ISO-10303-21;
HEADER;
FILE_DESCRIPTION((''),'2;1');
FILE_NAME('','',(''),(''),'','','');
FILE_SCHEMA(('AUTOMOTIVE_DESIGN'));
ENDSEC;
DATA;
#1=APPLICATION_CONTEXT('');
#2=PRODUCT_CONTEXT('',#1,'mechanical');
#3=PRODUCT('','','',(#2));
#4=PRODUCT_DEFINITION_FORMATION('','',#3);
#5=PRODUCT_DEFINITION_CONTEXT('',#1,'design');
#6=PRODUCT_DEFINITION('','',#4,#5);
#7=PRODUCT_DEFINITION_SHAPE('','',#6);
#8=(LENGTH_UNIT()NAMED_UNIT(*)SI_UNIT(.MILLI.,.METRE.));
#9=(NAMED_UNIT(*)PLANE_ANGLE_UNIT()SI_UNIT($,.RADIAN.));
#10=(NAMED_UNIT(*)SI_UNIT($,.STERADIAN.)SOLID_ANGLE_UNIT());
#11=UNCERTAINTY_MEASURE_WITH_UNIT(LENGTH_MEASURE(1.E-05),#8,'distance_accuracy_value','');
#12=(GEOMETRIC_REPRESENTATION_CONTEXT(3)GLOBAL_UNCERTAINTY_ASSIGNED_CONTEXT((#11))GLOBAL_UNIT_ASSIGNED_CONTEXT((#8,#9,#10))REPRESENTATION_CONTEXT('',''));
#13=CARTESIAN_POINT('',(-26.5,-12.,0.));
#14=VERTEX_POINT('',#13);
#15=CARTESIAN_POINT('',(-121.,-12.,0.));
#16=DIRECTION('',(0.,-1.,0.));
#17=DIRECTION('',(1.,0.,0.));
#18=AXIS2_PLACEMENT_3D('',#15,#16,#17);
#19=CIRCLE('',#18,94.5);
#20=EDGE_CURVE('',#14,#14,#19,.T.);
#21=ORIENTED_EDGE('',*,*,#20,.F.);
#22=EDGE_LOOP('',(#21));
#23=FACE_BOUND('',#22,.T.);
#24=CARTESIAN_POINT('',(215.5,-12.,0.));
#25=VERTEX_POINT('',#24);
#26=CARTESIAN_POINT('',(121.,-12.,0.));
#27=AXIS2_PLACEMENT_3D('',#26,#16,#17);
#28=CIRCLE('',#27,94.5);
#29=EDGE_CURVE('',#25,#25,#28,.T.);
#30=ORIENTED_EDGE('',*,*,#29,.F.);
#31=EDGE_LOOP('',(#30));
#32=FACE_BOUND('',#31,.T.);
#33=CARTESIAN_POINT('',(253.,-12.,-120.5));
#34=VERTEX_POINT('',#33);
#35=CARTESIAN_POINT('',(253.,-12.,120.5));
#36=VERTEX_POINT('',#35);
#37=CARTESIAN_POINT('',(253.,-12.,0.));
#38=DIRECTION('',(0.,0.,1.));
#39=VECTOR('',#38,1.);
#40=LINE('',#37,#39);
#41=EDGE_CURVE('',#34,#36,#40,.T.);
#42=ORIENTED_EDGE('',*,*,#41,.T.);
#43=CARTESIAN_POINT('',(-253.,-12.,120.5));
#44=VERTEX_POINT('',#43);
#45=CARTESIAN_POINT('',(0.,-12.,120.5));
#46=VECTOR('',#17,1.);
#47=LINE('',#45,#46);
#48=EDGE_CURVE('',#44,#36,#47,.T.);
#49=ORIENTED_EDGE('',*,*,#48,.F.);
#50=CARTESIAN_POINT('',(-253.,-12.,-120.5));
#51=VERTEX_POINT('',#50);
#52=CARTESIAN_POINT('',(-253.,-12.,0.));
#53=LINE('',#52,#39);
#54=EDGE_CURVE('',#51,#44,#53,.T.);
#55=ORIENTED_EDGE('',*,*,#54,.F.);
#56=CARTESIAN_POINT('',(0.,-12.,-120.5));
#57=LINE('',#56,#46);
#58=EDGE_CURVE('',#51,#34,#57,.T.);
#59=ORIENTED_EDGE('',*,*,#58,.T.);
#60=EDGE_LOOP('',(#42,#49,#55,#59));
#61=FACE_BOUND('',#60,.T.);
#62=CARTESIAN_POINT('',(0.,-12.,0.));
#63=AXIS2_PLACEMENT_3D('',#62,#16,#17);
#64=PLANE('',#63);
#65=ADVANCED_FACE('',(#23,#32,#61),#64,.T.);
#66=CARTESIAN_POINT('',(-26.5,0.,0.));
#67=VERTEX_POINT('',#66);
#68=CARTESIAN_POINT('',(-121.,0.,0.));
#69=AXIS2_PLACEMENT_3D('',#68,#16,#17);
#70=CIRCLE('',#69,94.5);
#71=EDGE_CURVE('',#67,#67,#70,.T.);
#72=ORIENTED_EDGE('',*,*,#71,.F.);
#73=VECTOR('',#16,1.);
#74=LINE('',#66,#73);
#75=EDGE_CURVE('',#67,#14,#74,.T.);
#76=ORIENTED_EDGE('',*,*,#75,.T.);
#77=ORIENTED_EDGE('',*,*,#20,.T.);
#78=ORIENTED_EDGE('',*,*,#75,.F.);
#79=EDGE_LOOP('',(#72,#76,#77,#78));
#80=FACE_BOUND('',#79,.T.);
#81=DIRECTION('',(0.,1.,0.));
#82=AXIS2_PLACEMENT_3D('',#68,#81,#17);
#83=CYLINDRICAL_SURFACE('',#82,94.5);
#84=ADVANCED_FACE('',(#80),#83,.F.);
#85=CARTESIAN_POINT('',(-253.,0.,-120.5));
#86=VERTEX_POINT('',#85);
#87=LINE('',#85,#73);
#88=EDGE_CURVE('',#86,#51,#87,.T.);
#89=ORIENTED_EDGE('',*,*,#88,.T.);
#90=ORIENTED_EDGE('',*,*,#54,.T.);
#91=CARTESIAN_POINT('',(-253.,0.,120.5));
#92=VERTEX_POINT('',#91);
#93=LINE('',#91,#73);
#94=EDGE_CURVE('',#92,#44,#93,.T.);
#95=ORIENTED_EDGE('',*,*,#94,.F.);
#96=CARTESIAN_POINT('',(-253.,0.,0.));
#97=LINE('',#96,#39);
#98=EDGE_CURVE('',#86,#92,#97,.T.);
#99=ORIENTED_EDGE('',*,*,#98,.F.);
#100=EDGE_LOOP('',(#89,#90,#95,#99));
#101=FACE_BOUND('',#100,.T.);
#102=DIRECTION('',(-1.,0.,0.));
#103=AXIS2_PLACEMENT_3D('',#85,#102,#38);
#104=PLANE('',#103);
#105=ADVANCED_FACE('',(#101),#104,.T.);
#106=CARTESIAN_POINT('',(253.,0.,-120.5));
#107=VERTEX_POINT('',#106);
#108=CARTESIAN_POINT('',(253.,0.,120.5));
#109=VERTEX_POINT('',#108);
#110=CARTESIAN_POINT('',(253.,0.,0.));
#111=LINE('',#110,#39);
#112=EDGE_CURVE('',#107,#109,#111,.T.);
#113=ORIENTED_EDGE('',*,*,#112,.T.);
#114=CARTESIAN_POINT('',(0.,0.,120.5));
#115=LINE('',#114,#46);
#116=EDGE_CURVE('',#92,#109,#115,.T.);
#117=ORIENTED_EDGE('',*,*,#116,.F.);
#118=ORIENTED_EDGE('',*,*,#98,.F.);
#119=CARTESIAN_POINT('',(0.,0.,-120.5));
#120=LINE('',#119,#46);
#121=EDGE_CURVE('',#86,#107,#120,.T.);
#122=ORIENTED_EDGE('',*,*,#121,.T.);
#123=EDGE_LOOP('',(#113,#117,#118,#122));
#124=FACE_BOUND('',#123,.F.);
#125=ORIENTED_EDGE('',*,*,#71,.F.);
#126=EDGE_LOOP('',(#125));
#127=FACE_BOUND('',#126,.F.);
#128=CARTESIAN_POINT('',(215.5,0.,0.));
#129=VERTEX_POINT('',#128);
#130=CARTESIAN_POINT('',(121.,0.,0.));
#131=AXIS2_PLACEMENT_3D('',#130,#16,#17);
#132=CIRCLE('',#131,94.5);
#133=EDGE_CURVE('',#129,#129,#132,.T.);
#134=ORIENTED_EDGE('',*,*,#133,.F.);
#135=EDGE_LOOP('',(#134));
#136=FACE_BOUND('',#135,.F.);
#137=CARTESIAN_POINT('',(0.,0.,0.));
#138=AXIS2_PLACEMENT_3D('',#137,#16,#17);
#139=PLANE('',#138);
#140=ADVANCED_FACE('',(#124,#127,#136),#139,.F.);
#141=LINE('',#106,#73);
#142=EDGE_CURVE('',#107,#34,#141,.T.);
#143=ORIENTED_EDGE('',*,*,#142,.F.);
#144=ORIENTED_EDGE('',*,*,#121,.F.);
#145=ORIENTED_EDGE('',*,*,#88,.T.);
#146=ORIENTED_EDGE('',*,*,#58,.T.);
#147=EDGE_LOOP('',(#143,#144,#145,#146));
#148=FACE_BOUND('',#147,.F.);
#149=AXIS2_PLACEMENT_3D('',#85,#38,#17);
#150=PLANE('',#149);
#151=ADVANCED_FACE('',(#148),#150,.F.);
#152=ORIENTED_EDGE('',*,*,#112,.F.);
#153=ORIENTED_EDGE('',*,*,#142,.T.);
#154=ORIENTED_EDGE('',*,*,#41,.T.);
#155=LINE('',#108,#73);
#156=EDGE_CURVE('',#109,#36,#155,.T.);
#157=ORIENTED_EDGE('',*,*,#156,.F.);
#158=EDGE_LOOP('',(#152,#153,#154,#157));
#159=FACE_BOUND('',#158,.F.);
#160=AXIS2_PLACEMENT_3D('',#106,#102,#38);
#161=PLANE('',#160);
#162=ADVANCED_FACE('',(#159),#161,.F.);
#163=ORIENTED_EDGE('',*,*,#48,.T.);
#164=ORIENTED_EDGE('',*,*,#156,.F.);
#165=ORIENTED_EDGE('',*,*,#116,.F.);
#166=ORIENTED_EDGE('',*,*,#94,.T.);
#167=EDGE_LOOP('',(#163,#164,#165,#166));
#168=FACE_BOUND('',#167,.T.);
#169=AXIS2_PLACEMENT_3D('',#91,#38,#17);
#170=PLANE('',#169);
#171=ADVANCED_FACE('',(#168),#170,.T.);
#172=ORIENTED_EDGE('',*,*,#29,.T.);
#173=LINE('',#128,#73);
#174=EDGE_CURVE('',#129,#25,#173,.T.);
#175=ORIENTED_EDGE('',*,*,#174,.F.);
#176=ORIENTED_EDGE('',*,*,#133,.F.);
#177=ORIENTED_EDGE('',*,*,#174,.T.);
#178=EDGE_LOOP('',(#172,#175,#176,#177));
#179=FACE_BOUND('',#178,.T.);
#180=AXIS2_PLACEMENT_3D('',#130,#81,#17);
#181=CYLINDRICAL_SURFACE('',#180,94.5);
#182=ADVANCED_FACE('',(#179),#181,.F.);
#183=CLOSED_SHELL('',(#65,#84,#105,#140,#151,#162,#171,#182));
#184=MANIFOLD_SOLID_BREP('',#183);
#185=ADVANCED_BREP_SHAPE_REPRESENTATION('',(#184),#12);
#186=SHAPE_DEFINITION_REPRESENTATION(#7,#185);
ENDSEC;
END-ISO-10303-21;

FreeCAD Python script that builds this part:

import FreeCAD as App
import Part
import Sketcher
Q = App.Units.Quantity

doc = App.newDocument("Part")
body = doc.addObject("PartDesign::Body", "Body")

# Sketch on XZ plane
sketch1 = body.newObject("Sketcher::SketchObject", "Sketch")
sketch1.AttachmentSupport = (doc.getObject("XZ_Plane"), [""])
sketch1.MapMode = "FlatFace"
sketch1.addGeometry(Part.LineSegment(App.Vector(-253, 120, 0), App.Vector(-253, -120, 0)), False)
sketch1.addGeometry(Part.LineSegment(App.Vector(-253, -120, 0), App.Vector(253, -120, 0)), False)
sketch1.addGeometry(Part.LineSegment(App.Vector(253, -120, 0), App.Vector(253, 120, 0)), False)
sketch1.addGeometry(Part.LineSegment(App.Vector(253, 120, 0), App.Vector(-253, 120, 0)), False)
sketch1.addGeometry(Part.Circle(App.Vector(-121, 0, 0), App.Vector(0, 0, 1), 94), False)
sketch1.addGeometry(Part.Circle(App.Vector(121, 0, 0), App.Vector(0, 0, 1), 94), False)
sketch1.addConstraint(Sketcher.Constraint("Coincident", 0, 2, 1, 1))
sketch1.addConstraint(Sketcher.Constraint("Coincident", 1, 2, 2, 1))
sketch1.addConstraint(Sketcher.Constraint("Coincident", 2, 2, 3, 1))
sketch1.addConstraint(Sketcher.Constraint("Coincident", 3, 2, 0, 1))
sketch1.addConstraint(Sketcher.Constraint("Vertical", 0))
sketch1.addConstraint(Sketcher.Constraint("Horizontal", 1))
sketch1.addConstraint(Sketcher.Constraint("Vertical", 2))
sketch1.addConstraint(Sketcher.Constraint("Horizontal", 3))
sketch1.addConstraint(Sketcher.Constraint("Equal", 4, 5))
sketch1.addConstraint(Sketcher.Constraint("Symmetric", 4, 3, 5, 3, -1, 1))
sketch1.addConstraint(Sketcher.Constraint("Symmetric", 0, 2, 2, 2, -1, 1))
sketch1.addConstraint(Sketcher.Constraint("PointOnObject", 4, 3, -1))
sketch1.addConstraint(Sketcher.Constraint("Diameter", 4, Q("189 mm")))
sketch1.addConstraint(Sketcher.Constraint("DistanceX", 1, 1, 1, 2, Q("506 mm")))
sketch1.addConstraint(Sketcher.Constraint("DistanceY", 0, 2, 0, 1, Q("241 mm")))
sketch1.addConstraint(Sketcher.Constraint("DistanceX", 4, 3, -1, 1, Q("121 mm")))
pad1 = body.newObject("PartDesign::Pad", "Pad")
pad1.Profile = sketch1
pad1.Length = 12

doc.recompute()
